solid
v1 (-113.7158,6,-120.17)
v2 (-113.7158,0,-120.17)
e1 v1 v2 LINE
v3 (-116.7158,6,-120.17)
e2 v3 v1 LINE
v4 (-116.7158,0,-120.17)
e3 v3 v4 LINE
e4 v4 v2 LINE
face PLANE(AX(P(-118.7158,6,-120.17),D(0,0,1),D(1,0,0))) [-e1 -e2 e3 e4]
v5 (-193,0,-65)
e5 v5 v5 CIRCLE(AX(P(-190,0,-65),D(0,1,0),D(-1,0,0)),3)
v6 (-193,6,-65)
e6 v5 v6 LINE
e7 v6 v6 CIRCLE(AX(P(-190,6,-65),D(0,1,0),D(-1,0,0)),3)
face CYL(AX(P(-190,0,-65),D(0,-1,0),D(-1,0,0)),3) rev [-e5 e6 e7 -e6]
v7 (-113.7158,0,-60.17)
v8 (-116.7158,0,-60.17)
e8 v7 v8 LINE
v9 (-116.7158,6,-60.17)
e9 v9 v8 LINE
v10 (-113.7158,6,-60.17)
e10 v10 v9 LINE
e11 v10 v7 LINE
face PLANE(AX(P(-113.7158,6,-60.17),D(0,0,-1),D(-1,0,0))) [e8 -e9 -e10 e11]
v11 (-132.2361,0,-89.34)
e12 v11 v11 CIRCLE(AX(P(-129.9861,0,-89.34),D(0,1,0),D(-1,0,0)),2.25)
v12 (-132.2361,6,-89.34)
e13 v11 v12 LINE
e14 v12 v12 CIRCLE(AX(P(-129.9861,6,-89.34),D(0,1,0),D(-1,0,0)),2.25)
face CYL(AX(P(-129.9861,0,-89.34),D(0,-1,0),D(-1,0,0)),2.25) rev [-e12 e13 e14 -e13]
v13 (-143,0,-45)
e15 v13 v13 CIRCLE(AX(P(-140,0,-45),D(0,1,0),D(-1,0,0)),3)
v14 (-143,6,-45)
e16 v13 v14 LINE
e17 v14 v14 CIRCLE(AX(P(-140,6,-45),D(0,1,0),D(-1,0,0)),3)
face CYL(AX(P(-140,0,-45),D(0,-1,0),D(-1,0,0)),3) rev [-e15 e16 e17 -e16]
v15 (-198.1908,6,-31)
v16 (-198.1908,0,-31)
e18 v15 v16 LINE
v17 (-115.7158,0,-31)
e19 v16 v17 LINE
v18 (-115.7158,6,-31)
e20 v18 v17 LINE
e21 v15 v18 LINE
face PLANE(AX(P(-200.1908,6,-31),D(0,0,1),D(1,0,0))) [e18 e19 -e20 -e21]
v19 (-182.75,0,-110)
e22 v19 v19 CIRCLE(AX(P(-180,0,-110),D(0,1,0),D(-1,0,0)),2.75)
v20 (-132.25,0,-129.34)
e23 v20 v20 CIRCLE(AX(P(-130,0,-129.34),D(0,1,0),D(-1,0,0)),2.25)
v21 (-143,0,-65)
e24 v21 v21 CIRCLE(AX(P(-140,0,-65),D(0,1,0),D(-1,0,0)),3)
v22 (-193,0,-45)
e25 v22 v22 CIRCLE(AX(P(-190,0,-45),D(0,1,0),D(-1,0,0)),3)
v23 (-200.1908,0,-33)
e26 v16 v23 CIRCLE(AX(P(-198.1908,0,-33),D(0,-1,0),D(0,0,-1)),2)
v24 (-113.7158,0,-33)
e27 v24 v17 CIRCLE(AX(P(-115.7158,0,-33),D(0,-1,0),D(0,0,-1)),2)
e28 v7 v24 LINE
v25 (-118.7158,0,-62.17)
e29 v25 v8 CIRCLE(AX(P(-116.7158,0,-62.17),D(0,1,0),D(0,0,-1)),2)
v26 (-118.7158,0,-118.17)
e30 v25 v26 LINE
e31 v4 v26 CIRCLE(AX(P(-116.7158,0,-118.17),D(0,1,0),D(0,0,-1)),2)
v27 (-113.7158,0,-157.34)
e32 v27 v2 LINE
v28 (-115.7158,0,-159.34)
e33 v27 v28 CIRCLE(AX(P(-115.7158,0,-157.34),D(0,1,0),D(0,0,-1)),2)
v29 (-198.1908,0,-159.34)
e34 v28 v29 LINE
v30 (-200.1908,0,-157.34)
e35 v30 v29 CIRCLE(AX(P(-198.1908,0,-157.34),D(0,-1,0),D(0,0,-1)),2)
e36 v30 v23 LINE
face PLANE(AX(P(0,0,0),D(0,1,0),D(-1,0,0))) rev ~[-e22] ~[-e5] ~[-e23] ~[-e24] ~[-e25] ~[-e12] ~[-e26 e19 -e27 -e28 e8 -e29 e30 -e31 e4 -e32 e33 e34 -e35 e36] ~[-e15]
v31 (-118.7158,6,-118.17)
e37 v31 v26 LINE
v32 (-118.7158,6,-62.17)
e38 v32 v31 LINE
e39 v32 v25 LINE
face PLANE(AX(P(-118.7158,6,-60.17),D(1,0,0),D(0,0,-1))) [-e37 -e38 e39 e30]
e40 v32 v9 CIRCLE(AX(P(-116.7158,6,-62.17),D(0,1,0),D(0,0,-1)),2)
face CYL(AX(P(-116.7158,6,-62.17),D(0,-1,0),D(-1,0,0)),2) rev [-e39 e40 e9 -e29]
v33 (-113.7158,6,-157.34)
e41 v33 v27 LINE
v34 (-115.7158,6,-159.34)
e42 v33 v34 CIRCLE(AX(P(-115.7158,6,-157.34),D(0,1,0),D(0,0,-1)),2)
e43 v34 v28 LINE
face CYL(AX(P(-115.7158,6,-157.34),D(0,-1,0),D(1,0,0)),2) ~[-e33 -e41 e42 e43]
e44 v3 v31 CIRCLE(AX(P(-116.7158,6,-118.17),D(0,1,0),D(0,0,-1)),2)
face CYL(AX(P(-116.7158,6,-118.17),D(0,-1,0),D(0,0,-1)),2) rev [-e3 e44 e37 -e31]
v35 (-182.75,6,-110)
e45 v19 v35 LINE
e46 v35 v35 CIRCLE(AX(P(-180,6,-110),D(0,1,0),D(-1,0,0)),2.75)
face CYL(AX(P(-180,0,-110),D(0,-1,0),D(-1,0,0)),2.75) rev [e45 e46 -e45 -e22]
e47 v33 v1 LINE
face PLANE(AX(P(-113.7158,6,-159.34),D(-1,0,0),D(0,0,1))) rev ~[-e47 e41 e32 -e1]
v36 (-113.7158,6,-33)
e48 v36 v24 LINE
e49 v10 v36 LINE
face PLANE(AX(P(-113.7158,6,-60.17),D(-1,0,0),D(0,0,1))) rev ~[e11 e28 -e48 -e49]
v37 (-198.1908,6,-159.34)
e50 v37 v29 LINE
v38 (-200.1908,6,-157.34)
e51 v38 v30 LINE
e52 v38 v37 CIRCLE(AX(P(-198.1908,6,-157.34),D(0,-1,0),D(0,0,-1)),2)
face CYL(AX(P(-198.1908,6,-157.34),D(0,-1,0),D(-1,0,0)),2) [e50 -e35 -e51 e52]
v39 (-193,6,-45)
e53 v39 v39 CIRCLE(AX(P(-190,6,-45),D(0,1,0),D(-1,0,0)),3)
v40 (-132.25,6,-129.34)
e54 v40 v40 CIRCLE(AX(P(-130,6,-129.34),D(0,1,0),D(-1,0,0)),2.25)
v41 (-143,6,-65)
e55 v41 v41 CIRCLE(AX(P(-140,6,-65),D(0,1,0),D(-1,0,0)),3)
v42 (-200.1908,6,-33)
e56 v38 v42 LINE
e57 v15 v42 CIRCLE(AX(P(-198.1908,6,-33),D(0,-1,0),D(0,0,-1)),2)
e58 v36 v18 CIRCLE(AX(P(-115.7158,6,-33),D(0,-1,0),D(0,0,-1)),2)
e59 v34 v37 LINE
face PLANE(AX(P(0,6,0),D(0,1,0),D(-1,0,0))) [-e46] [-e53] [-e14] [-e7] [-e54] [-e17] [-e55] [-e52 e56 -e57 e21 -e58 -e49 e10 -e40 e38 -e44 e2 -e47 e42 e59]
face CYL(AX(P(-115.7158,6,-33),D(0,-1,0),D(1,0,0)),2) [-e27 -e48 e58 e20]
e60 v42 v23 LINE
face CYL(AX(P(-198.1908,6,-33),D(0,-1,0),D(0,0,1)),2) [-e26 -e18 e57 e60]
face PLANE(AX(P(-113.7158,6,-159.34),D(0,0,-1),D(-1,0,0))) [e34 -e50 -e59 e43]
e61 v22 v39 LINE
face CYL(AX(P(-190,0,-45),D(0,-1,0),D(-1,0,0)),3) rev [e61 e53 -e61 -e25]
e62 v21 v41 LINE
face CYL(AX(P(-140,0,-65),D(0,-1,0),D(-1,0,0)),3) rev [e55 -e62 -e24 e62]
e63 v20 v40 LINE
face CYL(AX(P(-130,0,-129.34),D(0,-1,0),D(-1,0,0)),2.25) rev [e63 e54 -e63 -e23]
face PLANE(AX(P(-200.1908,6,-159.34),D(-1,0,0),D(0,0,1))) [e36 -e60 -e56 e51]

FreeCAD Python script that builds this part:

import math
import FreeCAD as App
import Part
import Sketcher
from FreeCAD import Vector
Q = App.Units.Quantity


def edges_at(feature, points):
    """Names of the edges that pass closest to the given points."""
    edges = feature.Shape.Edges
    near = lambda p: min(range(len(edges)), key=lambda i: edges[i].distToShape(Part.Vertex(*p))[0])
    return sorted({f"Edge{near(p) + 1}" for p in points})


def add_polygon(sketch, points):
    """Adds a closed chain of lines whose ends are joined by coincident constraints."""
    first, n = sketch.GeometryCount, len(points)
    for a, b in zip(points, points[1:] + points[:1]):
        sketch.addGeometry(Part.LineSegment(App.Vector(*a, 0), App.Vector(*b, 0)), False)
    for i in range(n):
        sketch.addConstraint(Sketcher.Constraint("Coincident", first + i, 2, first + (i + 1) % n, 1))

doc = App.newDocument("Part")
body = doc.addObject("PartDesign::Body", "Body")

# Sketch on XZ plane
sketch1 = body.newObject("Sketcher::SketchObject", "Sketch")
sketch1.AttachmentSupport = (doc.getObject("XZ_Plane"), [""])
sketch1.MapMode = "FlatFace"
sketch1.addGeometry([
    Part.ArcOfCircle(Part.Circle(Vector(-227.4316, -176.5808, 0), Vector(0, 0, 1), 2.7592), math.radians(180), math.radians(270)),  # 0
    Part.LineSegment(Vector(-230.1908, -176.5808, 0), Vector(-230.1908, -3.7592, 0)),  # 1
    Part.ArcOfCircle(Part.Circle(Vector(-227.4316, -3.7592, 0), Vector(0, 0, 1), 2.7592), math.radians(90), math.radians(180)),  # 2
    Part.LineSegment(Vector(-227.4316, -1, 0), Vector(0, -1, 0)),  # 3
    Part.ArcOfCircle(Part.Circle(Vector(0, -3.7592, 0), Vector(0, 0, 1), 2.7592), math.radians(0), math.radians(90)),  # 4
    Part.LineSegment(Vector(2.7592, -3.7592, 0), Vector(2.7592, -176.5808, 0)),  # 5
    Part.ArcOfCircle(Part.Circle(Vector(0, -176.5808, 0), Vector(0, 0, 1), 2.7592), math.radians(-90), math.radians(0)),  # 6
    Part.LineSegment(Vector(0, -179.34, 0), Vector(-227.4316, -179.34, 0)),  # 7
    Part.Circle(Vector(-20, -155, 0), Vector(0, 0, 1), 2.25),  # 8
    Part.Circle(Vector(-76, -155, 0), Vector(0, 0, 1), 2.25),  # 9
    Part.Circle(Vector(-20, -99, 0), Vector(0, 0, 1), 2.25),  # 10
    Part.Circle(Vector(-90, -129.34, 0), Vector(0, 0, 1), 2.25),  # 11
    Part.Circle(Vector(-55, -110, 0), Vector(0, 0, 1), 2.75),  # 12
    Part.Circle(Vector(-130, -129.34, 0), Vector(0, 0, 1), 2.25),  # 13
    Part.Circle(Vector(-180, -110, 0), Vector(0, 0, 1), 2.75),  # 14
    Part.Circle(Vector(-40, -65, 0), Vector(0, 0, 1), 3),  # 15
    Part.Circle(Vector(-40, -45, 0), Vector(0, 0, 1), 3),  # 16
    Part.Circle(Vector(-89.9861, -89.34, 0), Vector(0, 0, 1), 2.25),  # 17
    Part.Circle(Vector(-90, -65, 0), Vector(0, 0, 1), 3),  # 18
    Part.Circle(Vector(-90, -45, 0), Vector(0, 0, 1), 3),  # 19
    Part.Circle(Vector(-129.9861, -89.34, 0), Vector(0, 0, 1), 2.25),  # 20
    Part.Circle(Vector(-140, -65, 0), Vector(0, 0, 1), 3),  # 21
    Part.Circle(Vector(-140, -45, 0), Vector(0, 0, 1), 3),  # 22
    Part.Circle(Vector(-190, -65, 0), Vector(0, 0, 1), 3),  # 23
    Part.Circle(Vector(-190, -45, 0), Vector(0, 0, 1), 3),  # 24
], False)
sketch1.addConstraint([
    Sketcher.Constraint("Tangent", 0, 1, 1, 1),
    Sketcher.Constraint("Tangent", 1, 2, 2, 2),
    Sketcher.Constraint("Tangent", 2, 1, 3, 1),
    Sketcher.Constraint("Tangent", 3, 2, 4, 2),
    Sketcher.Constraint("Tangent", 4, 1, 5, 1),
    Sketcher.Constraint("Tangent", 5, 2, 6, 2),
    Sketcher.Constraint("Tangent", 6, 1, 7, 1),
    Sketcher.Constraint("Tangent", 7, 2, 0, 2),
    Sketcher.Constraint("Vertical", 1),
    Sketcher.Constraint("Horizontal", 3),
    Sketcher.Constraint("Vertical", 5),
    Sketcher.Constraint("Horizontal", 7),
    Sketcher.Constraint("Equal", 0, 2),
    Sketcher.Constraint("Equal", 2, 4),
    Sketcher.Constraint("Equal", 4, 6),
    Sketcher.Constraint("Equal", 8, 9),
    Sketcher.Constraint("Equal", 9, 10),
    Sketcher.Constraint("Equal", 10, 11),
    Sketcher.Constraint("Equal", 11, 13),
    Sketcher.Constraint("Equal", 12, 14),
    Sketcher.Constraint("Equal", 15, 16),
    Sketcher.Constraint("Equal", 13, 17),
    Sketcher.Constraint("Equal", 16, 18),
    Sketcher.Constraint("Equal", 18, 19),
    Sketcher.Constraint("Equal", 17, 20),
    Sketcher.Constraint("Equal", 19, 21),
    Sketcher.Constraint("Equal", 21, 22),
    Sketcher.Constraint("Equal", 22, 23),
    Sketcher.Constraint("Equal", 23, 24),
    Sketcher.Constraint("PointOnObject", 4, 3, -2),
    Sketcher.Constraint("Horizontal", 8, 3, 9, 3),
    Sketcher.Constraint("Horizontal", 11, 3, 13, 3),
    Sketcher.Constraint("Horizontal", 12, 3, 14, 3),
    Sketcher.Constraint("Horizontal", 15, 3, 18, 3),
    Sketcher.Constraint("Horizontal", 16, 3, 19, 3),
    Sketcher.Constraint("Horizontal", 17, 3, 20, 3),
    Sketcher.Constraint("Horizontal", 18, 3, 21, 3),
    Sketcher.Constraint("Horizontal", 19, 3, 22, 3),
    Sketcher.Constraint("Horizontal", 21, 3, 23, 3),
    Sketcher.Constraint("Horizontal", 22, 3, 24, 3),
    Sketcher.Constraint("Vertical", 8, 3, 10, 3),
    Sketcher.Constraint("Vertical", 15, 3, 16, 3),
    Sketcher.Constraint("Vertical", 11, 3, 18, 3),
    Sketcher.Constraint("Vertical", 18, 3, 19, 3),
    Sketcher.Constraint("Vertical", 21, 3, 22, 3),
    Sketcher.Constraint("Vertical", 23, 3, 24, 3),
    Sketcher.Constraint("Diameter", 15, Q("6 mm")),
    Sketcher.Constraint("Diameter", 8, Q("4.5 mm")),
    Sketcher.Constraint("Diameter", 12, Q("5.5 mm")),
    Sketcher.Constraint("DistanceX", 8, 3, -1, 1, Q("20 mm")),
    Sketcher.Constraint("DistanceX", 11, 3, -1, 1, Q("90 mm")),
    Sketcher.Constraint("DistanceX", 12, 3, -1, 1, Q("55 mm")),
    Sketcher.Constraint("DistanceY", 12, 3, -1, 1, Q("110 mm")),
    Sketcher.Constraint("DistanceX", 15, 3, -1, 1, Q("40 mm")),
    Sketcher.Constraint("DistanceY", 16, 3, -1, 1, Q("45 mm")),
    Sketcher.Constraint("DistanceY", 2, 1, -1, 1, Q("1 mm")),
    Sketcher.Constraint("DistanceX", 9, 3, 8, 3, Q("56 mm")),
    Sketcher.Constraint("DistanceY", 8, 3, 10, 3, Q("56 mm")),
    Sketcher.Constraint("DistanceY", 9, 3, 12, 3, Q("45 mm")),
    Sketcher.Constraint("DistanceX", 13, 3, 11, 3, Q("40 mm")),
    Sketcher.Constraint("DistanceX", 14, 3, 13, 3, Q("50 mm")),
    Sketcher.Constraint("DistanceY", 12, 3, 15, 3, Q("45 mm")),
    Sketcher.Constraint("DistanceY", 11, 3, 17, 3, Q("40 mm")),
    Sketcher.Constraint("DistanceX", 20, 3, 17, 3, Q("40 mm")),
    Sketcher.Constraint("DistanceX", 21, 3, 18, 3, Q("50 mm")),
    Sketcher.Constraint("DistanceX", 23, 3, 21, 3, Q("50 mm")),
    Sketcher.Constraint("DistanceY", 7, 2, 13, 3, Q("50 mm")),
    Sketcher.Constraint("Radius", 0, Q("2.7592 mm")),
    Sketcher.Constraint("DistanceX", 3, 1, 3, 2, Q("227.4316 mm")),
    Sketcher.Constraint("DistanceY", 1, 1, 1, 2, Q("172.8216 mm")),
    Sketcher.Constraint("DistanceX", 17, 3, -1, 1, Q("89.986 mm")),
])
pad1 = body.newObject("PartDesign::Pad", "Pad")
pad1.Profile = sketch1
pad1.Length = 6
pad1.Reversed = True

# Sketch on XZ plane
sketch2 = body.newObject("Sketcher::SketchObject", "Sketch001")
sketch2.AttachmentSupport = (doc.getObject("XZ_Plane"), [""])
sketch2.MapMode = "FlatFace"
sketch2.AttachmentOffset = App.Placement(Vector(0, 0, -6), App.Rotation())
sketch2.addGeometry(Part.ArcOfCircle(Part.Circle(Vector(-227.4316, -176.5808, 0), Vector(0, 0, 1), 2.7592), math.radians(180), math.radians(270)), False)  # 0
sketch2.addGeometry(Part.LineSegment(Vector(-230.1908, -176.5808, 0), Vector(-230.1908, -3.7592, 0)), False)  # 1
sketch2.addGeometry(Part.ArcOfCircle(Part.Circle(Vector(-227.4316, -3.7592, 0), Vector(0, 0, 1), 2.7592), math.radians(90), math.radians(180)), False)  # 2
sketch2.addGeometry(Part.LineSegment(Vector(-227.4316, -1, 0), Vector(2.7592, -1, 0)), False)  # 3
sketch2.addGeometry(Part.LineSegment(Vector(2.7592, -1, 0), Vector(2.7592, -199.34, 0)), False)  # 4
sketch2.addGeometry(Part.LineSegment(Vector(2.7592, -199.34, 0), Vector(-7.2408, -199.34, 0)), False)  # 5
sketch2.addGeometry(Part.LineSegment(Vector(-7.2408, -199.34, 0), Vector(-7.2408, -179.34, 0)), False)  # 6
sketch2.addGeometry(Part.LineSegment(Vector(-7.2408, -179.34, 0), Vector(-227.4316, -179.34, 0)), False)  # 7
add_polygon(sketch2, [(-200.1908, -159.34), (-113.7158, -159.34), (-113.7158, -120.17), (-118.7158, -120.17), (-118.7158, -60.17), (-113.7158, -60.17), (-113.7158, -31), (-200.1908, -31)])  # lines 8-15
sketch2.addConstraint([
    Sketcher.Constraint("Tangent", 0, 1, 1, 1),
    Sketcher.Constraint("Tangent", 1, 2, 2, 2),
    Sketcher.Constraint("Tangent", 2, 1, 3, 1),
    Sketcher.Constraint("Coincident", 3, 2, 4, 1),
    Sketcher.Constraint("Coincident", 4, 2, 5, 1),
    Sketcher.Constraint("Coincident", 5, 2, 6, 1),
    Sketcher.Constraint("Coincident", 6, 2, 7, 1),
    Sketcher.Constraint("Tangent", 7, 2, 0, 2),
    Sketcher.Constraint("Vertical", 1),
    Sketcher.Constraint("Horizontal", 3),
    Sketcher.Constraint("Vertical", 4),
    Sketcher.Constraint("Horizontal", 5),
    Sketcher.Constraint("Vertical", 6),
    Sketcher.Constraint("Horizontal", 7),
    Sketcher.Constraint("Horizontal", 8),
    Sketcher.Constraint("Vertical", 9),
    Sketcher.Constraint("Horizontal", 10),
    Sketcher.Constraint("Vertical", 11),
    Sketcher.Constraint("Horizontal", 12),
    Sketcher.Constraint("Vertical", 13),
    Sketcher.Constraint("Horizontal", 14),
    Sketcher.Constraint("Vertical", 15),
    Sketcher.Constraint("Equal", 0, 2),
    Sketcher.Constraint("Vertical", 9, 2, 12, 2),
    Sketcher.Constraint("DistanceX", 5, 2, 5, 1, Q("10 mm")),
    Sketcher.Constraint("DistanceY", 11, 1, 11, 2, Q("60 mm")),
    Sketcher.Constraint("DistanceY", 5, 2, 8, 2, Q("40 mm")),
    Sketcher.Constraint("DistanceX", 1, 2, 14, 2, Q("30 mm")),
    Sketcher.Constraint("DistanceY", 14, 2, 2, 1, Q("30 mm")),
    Sketcher.Constraint("DistanceX", 10, 2, 10, 1, Q("5 mm")),
    Sketcher.Constraint("DistanceY", 6, 1, 6, 2, Q("20 mm")),
    Sketcher.Constraint("DistanceY", 1, 1, 1, 2, Q("172.8216 mm")),
    Sketcher.Constraint("DistanceY", 2, 1, -1, 1, Q("1 mm")),
    Sketcher.Constraint("DistanceY", 4, 2, 4, 1, Q("198.34 mm")),
    Sketcher.Constraint("DistanceY", 9, 1, 9, 2, Q("39.17 mm")),
    Sketcher.Constraint("DistanceX", 0, 3, -1, 1, Q("227.4316 mm")),
    Sketcher.Constraint("DistanceX", 8, 1, 8, 2, Q("86.475 mm")),
    Sketcher.Constraint("DistanceX", 1, 2, 3, 2, Q("232.95 mm")),
])
pocket1 = body.newObject("PartDesign::Pocket", "Pocket")
pocket1.Profile = sketch2
pocket1.Type = "ThroughAll"
pocket1.Reversed = True
doc.recompute()

fillet = body.newObject("PartDesign::Fillet", "Fillet")
fillet.Base = (pocket1, edges_at(pocket1, [
    (-113.716, 3, -31),
    (-200.191, 3, -31),
    (-118.716, 3, -120.17),
    (-118.716, 3, -60.17),
    (-113.716, 3, -159.34),
    (-200.191, 3, -159.34),
]))
fillet.Radius = 2

doc.recompute()
